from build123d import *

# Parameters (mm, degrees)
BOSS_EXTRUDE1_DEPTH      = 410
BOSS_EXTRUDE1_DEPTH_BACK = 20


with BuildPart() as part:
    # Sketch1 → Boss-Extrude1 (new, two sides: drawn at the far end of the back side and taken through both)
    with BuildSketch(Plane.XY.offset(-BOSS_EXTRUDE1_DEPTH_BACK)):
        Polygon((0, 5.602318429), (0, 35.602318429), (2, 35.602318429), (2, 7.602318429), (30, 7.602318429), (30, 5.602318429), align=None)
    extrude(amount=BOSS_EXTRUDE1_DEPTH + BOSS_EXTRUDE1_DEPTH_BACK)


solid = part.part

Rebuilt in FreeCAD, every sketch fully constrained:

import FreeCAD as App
import Part
import Sketcher

V = App.Vector
Q = App.Units.Quantity


def add_polygon(sketch, points):
    """Adds a closed chain of lines whose ends are joined by coincident constraints."""
    first, n = sketch.GeometryCount, len(points)
    for a, b in zip(points, points[1:] + points[:1]):
        sketch.addGeometry(Part.LineSegment(App.Vector(*a, 0), App.Vector(*b, 0)), False)
    for i in range(n):
        sketch.addConstraint(Sketcher.Constraint("Coincident", first + i, 2, first + (i + 1) % n, 1))

doc = App.newDocument("Part")
params = doc.addObject("Spreadsheet::Sheet", "Params")
for row, (alias, value) in enumerate([
    ("sketch1_width", "30 mm"),
    ("sketch1_width2", "28 mm"),
    ("pad1_length", "410 mm"),
    ("pad1_length2", "20 mm"),
], start=1):
    params.set(f"A{row}", alias)
    params.set(f"B{row}", "=" + value)
    params.setAlias(f"B{row}", alias)

body = doc.addObject("PartDesign::Body", "Body")

# Sketch on XY plane
sketch1 = body.newObject("Sketcher::SketchObject", "Sketch")
sketch1.AttachmentSupport = (doc.getObject("XY_Plane"), [""])
sketch1.MapMode = "FlatFace"
add_polygon(sketch1, [(0, 35.6), (0, 5.6), (30, 5.6), (30, 7.6), (2, 7.6), (2, 35.6)])  # lines 0-5
sketch1.addConstraint([
    Sketcher.Constraint("Vertical", 0),
    Sketcher.Constraint("Horizontal", 1),
    Sketcher.Constraint("Vertical", 2),
    Sketcher.Constraint("Horizontal", 3),
    Sketcher.Constraint("Vertical", 4),
    Sketcher.Constraint("Horizontal", 5),
    Sketcher.Constraint("PointOnObject", 0, 2, -2),
    Sketcher.Constraint("Equal", 1, 0),
    Sketcher.Constraint("Equal", 5, 2),
    Sketcher.Constraint("DistanceX", 1, 1, 1, 2, Q("30 mm")),
    Sketcher.Constraint("DistanceX", 3, 2, 3, 1, Q("28 mm")),
    Sketcher.Constraint("DistanceY", -1, 1, 0, 2, Q("5.602318 mm")),
])
sketch1.setExpression("Constraints[15]", "Params.sketch1_width")
sketch1.setExpression("Constraints[16]", "Params.sketch1_width2")
pad1 = body.newObject("PartDesign::Pad", "Pad")
pad1.Profile = sketch1
pad1.Type = "TwoLengths"
pad1.setExpression("Length", "Params.pad1_length")
pad1.setExpression("Length2", "Params.pad1_length2")

doc.recompute()
